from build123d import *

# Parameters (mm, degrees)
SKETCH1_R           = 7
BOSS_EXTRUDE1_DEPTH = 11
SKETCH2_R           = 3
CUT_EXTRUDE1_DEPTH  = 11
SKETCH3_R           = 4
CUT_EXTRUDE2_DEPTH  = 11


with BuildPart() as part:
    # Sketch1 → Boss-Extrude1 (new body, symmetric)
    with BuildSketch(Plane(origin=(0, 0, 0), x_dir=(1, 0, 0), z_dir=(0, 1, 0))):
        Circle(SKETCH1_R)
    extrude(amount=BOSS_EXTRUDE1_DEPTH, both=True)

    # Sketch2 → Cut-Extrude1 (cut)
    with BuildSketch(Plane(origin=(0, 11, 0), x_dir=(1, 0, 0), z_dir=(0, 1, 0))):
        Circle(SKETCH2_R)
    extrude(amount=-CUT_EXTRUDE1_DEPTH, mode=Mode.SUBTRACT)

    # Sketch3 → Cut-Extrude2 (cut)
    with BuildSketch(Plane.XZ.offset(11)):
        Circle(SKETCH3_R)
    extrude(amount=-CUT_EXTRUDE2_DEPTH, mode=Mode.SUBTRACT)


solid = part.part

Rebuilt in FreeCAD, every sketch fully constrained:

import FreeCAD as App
import Part
import Sketcher

V = App.Vector

doc = App.newDocument("Part")
body = doc.addObject("PartDesign::Body", "Body")

# Sketch on XZ plane
sketch1 = body.newObject("Sketcher::SketchObject", "Sketch")
sketch1.AttachmentSupport = (doc.getObject("XZ_Plane"), [""])
sketch1.MapMode = "FlatFace"
sketch1.addGeometry(Part.Circle(V(0, 0, 0), V(0, 0, 1), 7), False)
sketch1.addConstraint([
    Sketcher.Constraint("Coincident", 0, 3, -1, 1),
    Sketcher.Constraint("Diameter", 0, 14.0),
])
pad1 = body.newObject("PartDesign::Pad", "Pad")
pad1.Profile = sketch1
pad1.Length = 22
pad1.Midplane = True

# Sketch on XZ plane
sketch2 = body.newObject("Sketcher::SketchObject", "Sketch001")
sketch2.AttachmentSupport = (doc.getObject("XZ_Plane"), [""])
sketch2.MapMode = "FlatFace"
sketch2.AttachmentOffset = App.Placement(V(0, 0, -11), App.Rotation())
sketch2.addGeometry(Part.Circle(V(0, 0, 0), V(0, 0, 1), 3), False)
sketch2.addConstraint([
    Sketcher.Constraint("Coincident", 0, 3, -1, 1),
    Sketcher.Constraint("Diameter", 0, 6.0),
])
pocket1 = body.newObject("PartDesign::Pocket", "Pocket")
pocket1.Profile = sketch2
pocket1.Length = 11
pocket1.Reversed = True

# Sketch on XZ plane
sketch3 = body.newObject("Sketcher::SketchObject", "Sketch002")
sketch3.AttachmentSupport = (doc.getObject("XZ_Plane"), [""])
sketch3.MapMode = "FlatFace"
sketch3.AttachmentOffset = App.Placement(V(0, 0, 11), App.Rotation())
sketch3.addGeometry(Part.Circle(V(0, 0, 0), V(0, 0, 1), 4), False)
sketch3.addConstraint([
    Sketcher.Constraint("Coincident", 0, 3, -1, 1),
    Sketcher.Constraint("Diameter", 0, 8.0),
])
pocket2 = body.newObject("PartDesign::Pocket", "Pocket001")
pocket2.Profile = sketch3
pocket2.Length = 11

doc.recompute()
